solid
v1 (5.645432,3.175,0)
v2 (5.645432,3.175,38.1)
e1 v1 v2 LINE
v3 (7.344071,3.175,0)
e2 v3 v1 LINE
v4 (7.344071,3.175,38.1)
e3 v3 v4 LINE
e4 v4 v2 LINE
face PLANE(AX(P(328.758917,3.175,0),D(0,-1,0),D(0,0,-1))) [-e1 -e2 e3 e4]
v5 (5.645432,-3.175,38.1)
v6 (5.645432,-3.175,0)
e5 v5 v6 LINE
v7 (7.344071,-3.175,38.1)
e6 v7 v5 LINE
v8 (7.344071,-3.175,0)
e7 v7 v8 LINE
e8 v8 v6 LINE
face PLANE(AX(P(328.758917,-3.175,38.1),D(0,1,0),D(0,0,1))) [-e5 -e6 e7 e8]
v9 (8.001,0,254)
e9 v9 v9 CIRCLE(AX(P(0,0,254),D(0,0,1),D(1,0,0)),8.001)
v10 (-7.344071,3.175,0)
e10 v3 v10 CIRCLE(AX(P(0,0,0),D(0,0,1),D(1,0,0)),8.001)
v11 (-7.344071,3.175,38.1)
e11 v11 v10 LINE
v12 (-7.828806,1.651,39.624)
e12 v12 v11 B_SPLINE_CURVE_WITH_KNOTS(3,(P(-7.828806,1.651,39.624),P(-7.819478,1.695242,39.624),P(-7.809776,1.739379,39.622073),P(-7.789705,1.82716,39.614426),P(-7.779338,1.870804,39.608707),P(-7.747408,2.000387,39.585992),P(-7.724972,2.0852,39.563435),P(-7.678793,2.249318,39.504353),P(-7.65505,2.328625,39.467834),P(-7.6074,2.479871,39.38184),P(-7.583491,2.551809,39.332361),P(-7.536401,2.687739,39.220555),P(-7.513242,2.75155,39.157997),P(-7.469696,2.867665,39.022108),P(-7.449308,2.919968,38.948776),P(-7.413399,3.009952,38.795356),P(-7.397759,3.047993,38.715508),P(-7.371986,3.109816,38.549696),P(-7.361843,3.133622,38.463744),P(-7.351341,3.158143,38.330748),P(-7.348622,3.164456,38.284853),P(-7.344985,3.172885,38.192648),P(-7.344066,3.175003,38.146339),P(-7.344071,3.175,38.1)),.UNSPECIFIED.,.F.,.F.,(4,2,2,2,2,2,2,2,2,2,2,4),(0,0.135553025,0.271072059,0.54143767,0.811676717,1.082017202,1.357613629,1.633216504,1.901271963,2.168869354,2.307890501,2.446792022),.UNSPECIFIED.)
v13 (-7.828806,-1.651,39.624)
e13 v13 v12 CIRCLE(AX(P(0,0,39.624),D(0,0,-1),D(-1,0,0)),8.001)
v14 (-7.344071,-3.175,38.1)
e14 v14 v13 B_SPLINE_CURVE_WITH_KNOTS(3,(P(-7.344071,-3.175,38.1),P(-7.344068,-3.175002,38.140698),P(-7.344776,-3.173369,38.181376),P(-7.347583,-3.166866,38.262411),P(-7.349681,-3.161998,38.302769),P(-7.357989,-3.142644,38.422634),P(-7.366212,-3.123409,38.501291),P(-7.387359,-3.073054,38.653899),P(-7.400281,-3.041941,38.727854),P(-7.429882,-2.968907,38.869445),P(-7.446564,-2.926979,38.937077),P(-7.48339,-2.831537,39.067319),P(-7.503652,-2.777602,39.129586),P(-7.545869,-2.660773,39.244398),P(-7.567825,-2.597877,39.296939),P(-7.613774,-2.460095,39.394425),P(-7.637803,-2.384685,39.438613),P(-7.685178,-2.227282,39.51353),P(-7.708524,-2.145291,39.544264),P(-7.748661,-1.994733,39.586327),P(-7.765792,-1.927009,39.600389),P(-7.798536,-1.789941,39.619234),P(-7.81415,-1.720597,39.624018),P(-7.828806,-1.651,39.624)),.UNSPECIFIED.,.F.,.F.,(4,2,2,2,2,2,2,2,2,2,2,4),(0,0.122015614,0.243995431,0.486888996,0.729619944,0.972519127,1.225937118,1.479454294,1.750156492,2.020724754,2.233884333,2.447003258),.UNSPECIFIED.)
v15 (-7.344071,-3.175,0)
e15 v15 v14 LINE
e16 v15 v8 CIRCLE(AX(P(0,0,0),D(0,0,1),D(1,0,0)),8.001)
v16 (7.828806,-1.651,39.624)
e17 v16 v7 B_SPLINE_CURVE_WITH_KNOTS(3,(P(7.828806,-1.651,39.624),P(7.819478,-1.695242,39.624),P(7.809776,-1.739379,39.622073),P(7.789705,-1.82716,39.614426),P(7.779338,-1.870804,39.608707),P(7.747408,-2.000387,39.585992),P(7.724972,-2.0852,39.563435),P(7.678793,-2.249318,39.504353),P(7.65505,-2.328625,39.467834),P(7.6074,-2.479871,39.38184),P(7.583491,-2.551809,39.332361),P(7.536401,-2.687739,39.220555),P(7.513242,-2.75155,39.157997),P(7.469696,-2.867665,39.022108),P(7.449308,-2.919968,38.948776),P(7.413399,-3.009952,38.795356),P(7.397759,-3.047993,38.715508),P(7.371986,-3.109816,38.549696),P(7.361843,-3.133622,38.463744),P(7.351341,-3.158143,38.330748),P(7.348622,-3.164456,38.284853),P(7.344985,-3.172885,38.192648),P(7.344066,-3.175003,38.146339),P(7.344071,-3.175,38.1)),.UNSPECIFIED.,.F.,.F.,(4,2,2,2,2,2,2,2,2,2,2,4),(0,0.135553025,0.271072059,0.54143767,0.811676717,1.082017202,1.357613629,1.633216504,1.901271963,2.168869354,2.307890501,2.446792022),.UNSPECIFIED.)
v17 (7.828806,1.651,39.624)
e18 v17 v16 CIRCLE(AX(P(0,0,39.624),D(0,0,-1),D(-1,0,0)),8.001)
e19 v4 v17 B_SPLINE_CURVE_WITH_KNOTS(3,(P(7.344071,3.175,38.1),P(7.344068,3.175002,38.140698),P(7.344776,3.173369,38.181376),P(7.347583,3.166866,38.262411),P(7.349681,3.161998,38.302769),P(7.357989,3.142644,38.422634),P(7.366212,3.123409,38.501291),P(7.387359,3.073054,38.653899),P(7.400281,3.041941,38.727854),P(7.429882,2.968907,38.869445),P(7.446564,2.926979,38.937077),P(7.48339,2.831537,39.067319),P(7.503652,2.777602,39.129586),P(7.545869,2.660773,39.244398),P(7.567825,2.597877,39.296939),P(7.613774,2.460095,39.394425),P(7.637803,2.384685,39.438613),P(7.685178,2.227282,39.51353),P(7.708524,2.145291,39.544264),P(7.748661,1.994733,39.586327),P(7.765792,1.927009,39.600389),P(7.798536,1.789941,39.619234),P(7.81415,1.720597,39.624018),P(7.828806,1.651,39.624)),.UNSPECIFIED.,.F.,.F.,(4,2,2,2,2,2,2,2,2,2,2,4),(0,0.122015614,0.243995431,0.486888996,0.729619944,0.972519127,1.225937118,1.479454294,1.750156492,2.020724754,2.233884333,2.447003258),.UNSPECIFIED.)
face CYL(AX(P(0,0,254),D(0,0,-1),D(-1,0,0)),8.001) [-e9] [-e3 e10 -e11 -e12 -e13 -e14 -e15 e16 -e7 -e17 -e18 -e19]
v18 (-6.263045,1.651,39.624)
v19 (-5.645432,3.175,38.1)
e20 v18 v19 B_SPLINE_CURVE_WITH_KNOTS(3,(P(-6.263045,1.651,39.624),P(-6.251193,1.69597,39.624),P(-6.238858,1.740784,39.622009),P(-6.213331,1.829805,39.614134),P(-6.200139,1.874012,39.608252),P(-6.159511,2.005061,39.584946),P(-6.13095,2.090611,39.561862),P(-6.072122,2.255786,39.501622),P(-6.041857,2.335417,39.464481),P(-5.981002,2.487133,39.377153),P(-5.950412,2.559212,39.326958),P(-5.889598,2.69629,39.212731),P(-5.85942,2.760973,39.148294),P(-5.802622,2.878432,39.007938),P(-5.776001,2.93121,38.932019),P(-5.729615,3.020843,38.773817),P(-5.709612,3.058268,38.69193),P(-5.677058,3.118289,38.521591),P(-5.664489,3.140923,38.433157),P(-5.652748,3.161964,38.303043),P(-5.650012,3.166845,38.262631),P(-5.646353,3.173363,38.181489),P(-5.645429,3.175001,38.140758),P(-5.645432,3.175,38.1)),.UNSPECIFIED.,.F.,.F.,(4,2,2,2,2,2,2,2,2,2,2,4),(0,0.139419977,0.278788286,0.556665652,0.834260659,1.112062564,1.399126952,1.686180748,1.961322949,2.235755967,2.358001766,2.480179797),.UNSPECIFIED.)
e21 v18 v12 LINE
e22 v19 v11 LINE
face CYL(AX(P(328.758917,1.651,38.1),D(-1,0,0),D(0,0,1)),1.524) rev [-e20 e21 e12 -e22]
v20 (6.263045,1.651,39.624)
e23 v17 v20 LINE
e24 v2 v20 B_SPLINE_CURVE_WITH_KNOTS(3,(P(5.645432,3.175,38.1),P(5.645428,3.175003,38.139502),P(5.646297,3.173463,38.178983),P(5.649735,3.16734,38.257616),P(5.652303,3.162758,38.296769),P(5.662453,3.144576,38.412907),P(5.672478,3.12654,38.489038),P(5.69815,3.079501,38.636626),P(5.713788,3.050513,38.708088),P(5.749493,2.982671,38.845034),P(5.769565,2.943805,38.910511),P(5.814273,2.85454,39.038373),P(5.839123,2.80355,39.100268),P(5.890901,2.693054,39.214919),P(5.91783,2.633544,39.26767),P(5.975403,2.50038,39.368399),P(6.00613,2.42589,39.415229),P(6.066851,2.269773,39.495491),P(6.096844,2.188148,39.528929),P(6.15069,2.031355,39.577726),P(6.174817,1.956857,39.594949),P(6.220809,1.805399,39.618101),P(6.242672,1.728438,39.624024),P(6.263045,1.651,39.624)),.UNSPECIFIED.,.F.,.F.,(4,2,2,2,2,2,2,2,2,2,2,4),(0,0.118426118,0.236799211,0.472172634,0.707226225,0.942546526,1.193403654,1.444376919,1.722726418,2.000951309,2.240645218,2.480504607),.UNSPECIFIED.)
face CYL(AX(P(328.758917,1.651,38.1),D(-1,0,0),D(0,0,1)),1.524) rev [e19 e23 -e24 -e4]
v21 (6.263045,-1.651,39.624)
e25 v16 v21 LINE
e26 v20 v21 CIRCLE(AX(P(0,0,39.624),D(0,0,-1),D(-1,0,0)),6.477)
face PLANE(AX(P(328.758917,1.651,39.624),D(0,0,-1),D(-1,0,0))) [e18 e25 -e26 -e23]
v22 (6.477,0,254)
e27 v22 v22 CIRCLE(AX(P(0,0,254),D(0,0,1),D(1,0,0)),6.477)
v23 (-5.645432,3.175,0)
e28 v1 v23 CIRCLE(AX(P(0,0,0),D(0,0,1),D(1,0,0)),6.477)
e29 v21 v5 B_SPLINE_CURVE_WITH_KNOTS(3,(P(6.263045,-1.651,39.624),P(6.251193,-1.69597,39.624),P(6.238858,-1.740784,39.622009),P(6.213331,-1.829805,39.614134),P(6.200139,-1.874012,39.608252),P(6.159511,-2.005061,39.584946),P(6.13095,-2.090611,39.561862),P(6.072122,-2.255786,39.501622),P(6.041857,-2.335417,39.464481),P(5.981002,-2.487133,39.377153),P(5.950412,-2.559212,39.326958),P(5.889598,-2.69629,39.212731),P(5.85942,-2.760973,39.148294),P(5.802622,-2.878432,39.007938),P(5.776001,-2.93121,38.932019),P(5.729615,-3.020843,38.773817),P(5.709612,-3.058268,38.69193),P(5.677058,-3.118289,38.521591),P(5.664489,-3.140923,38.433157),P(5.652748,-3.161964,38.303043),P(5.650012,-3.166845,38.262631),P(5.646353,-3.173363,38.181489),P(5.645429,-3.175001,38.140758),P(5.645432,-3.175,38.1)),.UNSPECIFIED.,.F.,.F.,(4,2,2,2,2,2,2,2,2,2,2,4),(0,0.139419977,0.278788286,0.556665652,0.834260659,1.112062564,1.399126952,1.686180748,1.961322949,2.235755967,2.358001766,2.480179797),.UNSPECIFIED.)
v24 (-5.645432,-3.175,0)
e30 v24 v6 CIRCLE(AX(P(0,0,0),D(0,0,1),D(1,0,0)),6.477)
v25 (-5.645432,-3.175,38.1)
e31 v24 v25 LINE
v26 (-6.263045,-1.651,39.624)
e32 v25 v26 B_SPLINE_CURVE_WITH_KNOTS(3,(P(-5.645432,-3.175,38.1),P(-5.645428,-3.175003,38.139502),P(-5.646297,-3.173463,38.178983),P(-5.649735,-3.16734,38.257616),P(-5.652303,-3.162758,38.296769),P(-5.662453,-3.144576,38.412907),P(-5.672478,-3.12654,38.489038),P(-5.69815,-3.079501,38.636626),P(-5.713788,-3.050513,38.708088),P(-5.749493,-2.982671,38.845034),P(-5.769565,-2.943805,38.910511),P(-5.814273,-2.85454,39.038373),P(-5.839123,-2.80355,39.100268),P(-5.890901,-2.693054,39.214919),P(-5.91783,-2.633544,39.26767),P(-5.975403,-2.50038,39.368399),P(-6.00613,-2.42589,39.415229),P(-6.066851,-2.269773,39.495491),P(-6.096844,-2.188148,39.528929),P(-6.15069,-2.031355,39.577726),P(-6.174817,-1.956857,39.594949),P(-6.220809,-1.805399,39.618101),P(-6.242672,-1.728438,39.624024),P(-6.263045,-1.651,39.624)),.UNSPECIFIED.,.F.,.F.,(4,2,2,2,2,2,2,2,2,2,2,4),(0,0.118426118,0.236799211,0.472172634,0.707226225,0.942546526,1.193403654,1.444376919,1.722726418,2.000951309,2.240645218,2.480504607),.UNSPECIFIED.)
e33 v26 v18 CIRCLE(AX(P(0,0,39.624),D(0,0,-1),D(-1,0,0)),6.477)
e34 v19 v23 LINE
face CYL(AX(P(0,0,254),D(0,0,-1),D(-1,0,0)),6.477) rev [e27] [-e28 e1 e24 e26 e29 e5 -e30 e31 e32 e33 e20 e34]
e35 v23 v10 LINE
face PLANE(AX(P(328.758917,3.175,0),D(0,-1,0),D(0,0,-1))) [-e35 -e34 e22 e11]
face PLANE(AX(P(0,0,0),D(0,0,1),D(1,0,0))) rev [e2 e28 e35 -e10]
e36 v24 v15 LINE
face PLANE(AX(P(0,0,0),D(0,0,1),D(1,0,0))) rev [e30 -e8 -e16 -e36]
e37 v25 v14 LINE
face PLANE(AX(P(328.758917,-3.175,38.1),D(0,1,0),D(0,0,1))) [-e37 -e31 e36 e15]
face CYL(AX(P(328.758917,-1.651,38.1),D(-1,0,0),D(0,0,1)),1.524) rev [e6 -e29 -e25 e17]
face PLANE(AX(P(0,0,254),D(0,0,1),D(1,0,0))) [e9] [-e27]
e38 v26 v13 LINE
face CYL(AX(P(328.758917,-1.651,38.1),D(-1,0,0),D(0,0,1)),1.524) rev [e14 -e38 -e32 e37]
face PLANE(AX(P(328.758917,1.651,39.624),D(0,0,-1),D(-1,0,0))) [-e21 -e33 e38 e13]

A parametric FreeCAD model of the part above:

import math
import FreeCAD as App
import Part
import Sketcher

V = App.Vector
Q = App.Units.Quantity

doc = App.newDocument("Part")
params = doc.addObject("Spreadsheet::Sheet", "Params")
for row, (alias, value) in enumerate([
    ("sketch1_diameter", "0.63 in"),
    ("sketch1_diameter2", "0.51 in"),
    ("pad1_length", "10 in"),
    ("sketch2_radius", "0.06 in"),
    ("sketch2_width", "0.13 in"),
], start=1):
    params.set(f"A{row}", alias)
    params.set(f"B{row}", "=" + value)
    params.setAlias(f"B{row}", alias)

body = doc.addObject("PartDesign::Body", "Body")

# Sketch on XY plane
sketch1 = body.newObject("Sketcher::SketchObject", "Sketch")
sketch1.AttachmentSupport = (doc.getObject("XY_Plane"), [""])
sketch1.MapMode = "FlatFace"
sketch1.addGeometry(Part.Circle(V(0, 0, 0), V(0, 0, 1), 8), False)
sketch1.addGeometry(Part.Circle(V(0, 0, 0), V(0, 0, 1), 6), False)
sketch1.addConstraint(Sketcher.Constraint("Coincident", 0, 3, -1, 1))
sketch1.addConstraint(Sketcher.Constraint("Coincident", 1, 3, -1, 1))
sketch1.addConstraint(Sketcher.Constraint("Diameter", 0, Q("0.63 in")))
sketch1.addConstraint(Sketcher.Constraint("Diameter", 1, Q("0.51 in")))
sketch1.setExpression("Constraints[2]", "Params.sketch1_diameter")
sketch1.setExpression("Constraints[3]", "Params.sketch1_diameter2")
pad1 = body.newObject("PartDesign::Pad", "Pad")
pad1.Profile = sketch1
pad1.setExpression("Length", "Params.pad1_length")

# Sketch on YZ plane
sketch2 = body.newObject("Sketcher::SketchObject", "Sketch001")
sketch2.AttachmentSupport = (doc.getObject("YZ_Plane"), [""])
sketch2.MapMode = "FlatFace"
sketch2.addGeometry(Part.ArcOfCircle(Part.Circle(V(1.7, 38.1, 0), V(0, 0, 1), 1.5), math.radians(0), math.radians(90)), False)
sketch2.addGeometry(Part.LineSegment(V(1.7, 39.6, 0), V(-1.7, 39.6, 0)), False)
sketch2.addGeometry(Part.ArcOfCircle(Part.Circle(V(-1.7, 38.1, 0), V(0, 0, 1), 1.5), math.radians(90), math.radians(180)), False)
sketch2.addGeometry(Part.LineSegment(V(-3.2, 38.1, 0), V(-3.2, -1555.5, 0)), False)
sketch2.addGeometry(Part.LineSegment(V(-3.2, -1555.5, 0), V(3.2, -1555.5, 0)), False)
sketch2.addGeometry(Part.LineSegment(V(3.2, -1555.5, 0), V(3.2, 38.1, 0)), False)
sketch2.addConstraint(Sketcher.Constraint("Tangent", 0, 2, 1, 1))
sketch2.addConstraint(Sketcher.Constraint("Tangent", 1, 2, 2, 1))
sketch2.addConstraint(Sketcher.Constraint("Tangent", 2, 2, 3, 1))
sketch2.addConstraint(Sketcher.Constraint("Coincident", 3, 2, 4, 1))
sketch2.addConstraint(Sketcher.Constraint("Coincident", 4, 2, 5, 1))
sketch2.addConstraint(Sketcher.Constraint("Tangent", 5, 2, 0, 1))
sketch2.addConstraint(Sketcher.Constraint("Horizontal", 1))
sketch2.addConstraint(Sketcher.Constraint("Vertical", 3))
sketch2.addConstraint(Sketcher.Constraint("Horizontal", 4))
sketch2.addConstraint(Sketcher.Constraint("Vertical", 5))
sketch2.addConstraint(Sketcher.Constraint("Equal", 0, 2))
sketch2.addConstraint(Sketcher.Constraint("Radius", 0, Q("0.06 in")))
sketch2.addConstraint(Sketcher.Constraint("DistanceX", 1, 2, 1, 1, Q("0.13 in")))
sketch2.addConstraint(Sketcher.Constraint("DistanceY", -1, 1, 0, 3, Q("1.5 in")))
sketch2.addConstraint(Sketcher.Constraint("DistanceX", -1, 1, 0, 3, Q("0.065 in")))
sketch2.addConstraint(Sketcher.Constraint("DistanceY", 3, 2, 3, 1, Q("1593.574519 mm")))
sketch2.setExpression("Constraints[11]", "Params.sketch2_radius")
sketch2.setExpression("Constraints[12]", "Params.sketch2_width")
pocket1 = body.newObject("PartDesign::Pocket", "Pocket")
pocket1.Profile = sketch2
pocket1.Type = "ThroughAll"
pocket1.Midplane = True

doc.recompute()
